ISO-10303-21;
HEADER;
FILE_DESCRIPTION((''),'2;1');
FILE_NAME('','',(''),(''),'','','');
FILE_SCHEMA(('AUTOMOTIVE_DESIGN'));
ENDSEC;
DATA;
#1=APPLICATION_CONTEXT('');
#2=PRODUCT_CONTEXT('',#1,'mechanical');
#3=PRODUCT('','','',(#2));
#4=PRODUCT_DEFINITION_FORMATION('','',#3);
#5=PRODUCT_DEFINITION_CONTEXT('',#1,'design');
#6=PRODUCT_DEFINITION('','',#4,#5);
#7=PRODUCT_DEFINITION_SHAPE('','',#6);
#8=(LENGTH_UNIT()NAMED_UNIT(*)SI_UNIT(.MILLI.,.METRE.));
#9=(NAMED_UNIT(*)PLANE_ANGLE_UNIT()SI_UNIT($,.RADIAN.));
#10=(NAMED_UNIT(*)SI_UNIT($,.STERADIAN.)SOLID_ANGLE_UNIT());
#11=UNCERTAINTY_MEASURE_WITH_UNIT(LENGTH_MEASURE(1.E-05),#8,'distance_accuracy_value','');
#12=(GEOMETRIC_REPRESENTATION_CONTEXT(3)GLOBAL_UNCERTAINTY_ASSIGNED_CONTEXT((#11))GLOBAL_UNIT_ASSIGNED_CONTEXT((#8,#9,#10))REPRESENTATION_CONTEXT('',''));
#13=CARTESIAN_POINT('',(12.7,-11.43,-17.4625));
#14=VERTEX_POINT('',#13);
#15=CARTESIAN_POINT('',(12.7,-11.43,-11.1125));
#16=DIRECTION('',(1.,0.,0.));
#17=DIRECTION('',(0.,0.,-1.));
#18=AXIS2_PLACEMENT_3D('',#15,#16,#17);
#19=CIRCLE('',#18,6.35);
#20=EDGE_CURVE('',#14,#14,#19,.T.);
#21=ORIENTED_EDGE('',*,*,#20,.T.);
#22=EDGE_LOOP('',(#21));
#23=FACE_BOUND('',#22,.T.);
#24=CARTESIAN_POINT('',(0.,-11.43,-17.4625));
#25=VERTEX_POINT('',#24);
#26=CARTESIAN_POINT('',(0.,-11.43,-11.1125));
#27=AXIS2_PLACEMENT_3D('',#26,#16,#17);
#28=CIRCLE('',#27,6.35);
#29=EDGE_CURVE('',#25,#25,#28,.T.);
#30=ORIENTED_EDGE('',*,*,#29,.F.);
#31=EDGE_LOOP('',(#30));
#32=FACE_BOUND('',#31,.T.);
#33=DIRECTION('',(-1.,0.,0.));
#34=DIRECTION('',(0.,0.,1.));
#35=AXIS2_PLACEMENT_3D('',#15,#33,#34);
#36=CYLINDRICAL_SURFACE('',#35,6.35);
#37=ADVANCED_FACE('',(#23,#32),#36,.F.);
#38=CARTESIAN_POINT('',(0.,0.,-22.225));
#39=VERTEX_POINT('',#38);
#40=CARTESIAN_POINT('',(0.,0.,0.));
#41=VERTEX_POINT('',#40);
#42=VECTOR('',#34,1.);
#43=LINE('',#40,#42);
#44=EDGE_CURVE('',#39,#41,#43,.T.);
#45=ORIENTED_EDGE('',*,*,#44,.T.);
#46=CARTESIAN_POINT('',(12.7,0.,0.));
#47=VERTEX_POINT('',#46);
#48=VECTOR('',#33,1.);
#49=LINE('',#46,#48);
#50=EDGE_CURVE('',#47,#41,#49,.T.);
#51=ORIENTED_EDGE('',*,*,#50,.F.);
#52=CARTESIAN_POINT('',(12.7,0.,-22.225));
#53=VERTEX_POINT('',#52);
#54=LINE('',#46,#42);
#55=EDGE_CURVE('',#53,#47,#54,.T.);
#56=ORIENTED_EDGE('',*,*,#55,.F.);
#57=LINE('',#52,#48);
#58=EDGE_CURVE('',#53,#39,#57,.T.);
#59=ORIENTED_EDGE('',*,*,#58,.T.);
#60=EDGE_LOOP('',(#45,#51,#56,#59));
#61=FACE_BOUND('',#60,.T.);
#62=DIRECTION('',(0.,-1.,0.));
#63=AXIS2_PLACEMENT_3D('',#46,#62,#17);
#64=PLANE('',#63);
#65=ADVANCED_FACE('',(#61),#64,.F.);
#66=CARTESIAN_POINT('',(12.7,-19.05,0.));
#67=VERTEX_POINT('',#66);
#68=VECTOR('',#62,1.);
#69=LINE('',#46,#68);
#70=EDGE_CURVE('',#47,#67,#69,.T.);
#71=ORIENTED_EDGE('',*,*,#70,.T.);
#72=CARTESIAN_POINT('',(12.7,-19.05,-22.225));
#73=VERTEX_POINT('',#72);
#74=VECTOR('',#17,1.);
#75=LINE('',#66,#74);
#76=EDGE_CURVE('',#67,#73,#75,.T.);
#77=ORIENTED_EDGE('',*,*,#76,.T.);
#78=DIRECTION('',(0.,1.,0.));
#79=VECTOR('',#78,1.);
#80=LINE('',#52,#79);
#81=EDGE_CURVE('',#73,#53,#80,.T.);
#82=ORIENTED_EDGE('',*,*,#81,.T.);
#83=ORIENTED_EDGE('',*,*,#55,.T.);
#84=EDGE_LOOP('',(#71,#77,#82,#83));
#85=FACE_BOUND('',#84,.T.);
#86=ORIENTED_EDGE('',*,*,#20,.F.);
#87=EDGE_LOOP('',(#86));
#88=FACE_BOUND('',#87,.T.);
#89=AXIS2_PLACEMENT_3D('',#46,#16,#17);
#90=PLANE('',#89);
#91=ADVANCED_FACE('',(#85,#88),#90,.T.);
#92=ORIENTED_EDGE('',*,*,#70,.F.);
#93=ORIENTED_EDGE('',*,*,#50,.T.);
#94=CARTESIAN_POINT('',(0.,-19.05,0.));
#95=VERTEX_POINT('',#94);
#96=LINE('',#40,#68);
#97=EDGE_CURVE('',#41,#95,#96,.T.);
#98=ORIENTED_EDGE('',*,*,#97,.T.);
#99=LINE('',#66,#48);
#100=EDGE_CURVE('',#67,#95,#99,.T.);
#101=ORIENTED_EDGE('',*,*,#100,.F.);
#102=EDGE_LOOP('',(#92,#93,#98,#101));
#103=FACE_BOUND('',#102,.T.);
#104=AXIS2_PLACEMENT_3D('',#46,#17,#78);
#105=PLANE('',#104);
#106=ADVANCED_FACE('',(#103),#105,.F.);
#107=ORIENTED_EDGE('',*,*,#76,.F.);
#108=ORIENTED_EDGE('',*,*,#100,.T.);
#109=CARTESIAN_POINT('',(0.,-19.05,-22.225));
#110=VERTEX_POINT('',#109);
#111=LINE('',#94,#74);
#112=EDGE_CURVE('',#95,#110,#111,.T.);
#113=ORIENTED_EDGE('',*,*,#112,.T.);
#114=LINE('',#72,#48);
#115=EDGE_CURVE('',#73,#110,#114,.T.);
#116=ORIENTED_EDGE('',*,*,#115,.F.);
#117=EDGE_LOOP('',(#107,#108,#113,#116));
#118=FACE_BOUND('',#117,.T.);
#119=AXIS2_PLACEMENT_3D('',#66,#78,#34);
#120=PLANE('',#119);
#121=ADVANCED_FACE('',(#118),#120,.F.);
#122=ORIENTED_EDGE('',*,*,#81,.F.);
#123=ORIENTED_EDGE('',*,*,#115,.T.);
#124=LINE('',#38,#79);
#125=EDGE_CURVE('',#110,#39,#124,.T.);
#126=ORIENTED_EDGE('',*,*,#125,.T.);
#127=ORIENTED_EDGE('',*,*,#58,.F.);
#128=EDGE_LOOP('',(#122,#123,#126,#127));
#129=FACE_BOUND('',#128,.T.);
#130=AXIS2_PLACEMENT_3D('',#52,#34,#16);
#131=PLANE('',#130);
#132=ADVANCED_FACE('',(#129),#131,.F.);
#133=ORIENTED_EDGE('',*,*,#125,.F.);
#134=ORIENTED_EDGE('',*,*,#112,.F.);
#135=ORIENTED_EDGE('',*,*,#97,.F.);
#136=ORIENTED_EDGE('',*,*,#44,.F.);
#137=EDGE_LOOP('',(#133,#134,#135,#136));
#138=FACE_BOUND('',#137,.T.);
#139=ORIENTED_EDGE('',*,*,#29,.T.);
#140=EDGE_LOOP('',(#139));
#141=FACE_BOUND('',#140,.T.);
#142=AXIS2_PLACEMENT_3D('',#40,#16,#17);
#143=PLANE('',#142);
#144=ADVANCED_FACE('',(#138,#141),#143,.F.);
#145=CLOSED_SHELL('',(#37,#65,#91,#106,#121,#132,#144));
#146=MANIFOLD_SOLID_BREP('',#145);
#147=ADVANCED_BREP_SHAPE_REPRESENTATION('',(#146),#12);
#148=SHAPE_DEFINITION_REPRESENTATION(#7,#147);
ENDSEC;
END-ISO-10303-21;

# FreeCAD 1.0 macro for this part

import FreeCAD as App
import Part
import Sketcher
from FreeCAD import Vector
Q = App.Units.Quantity

doc = App.newDocument("Part")
body = doc.addObject("PartDesign::Body", "Body")

sketch1 = body.newObject("Sketcher::SketchObject", "Sketch")
sketch1.AttachmentSupport = (doc.getObject("YZ_Plane"), [""])
sketch1.MapMode = "FlatFace"
sketch1.addGeometry([
    Part.LineSegment(Vector(0, 0, 0), Vector(-19, 0, 0)),
    Part.LineSegment(Vector(-19, 0, 0), Vector(-19, -22, 0)),
    Part.LineSegment(Vector(-19, -22, 0), Vector(0, -22, 0)),
    Part.LineSegment(Vector(0, -22, 0), Vector(0, 0, 0)),
    Part.Circle(Vector(-11, -11, 0), Vector(0, 0, 1), 6),
], False)
sketch1.addConstraint([
    Sketcher.Constraint("Coincident", 0, 2, 1, 1),
    Sketcher.Constraint("Coincident", 1, 2, 2, 1),
    Sketcher.Constraint("Coincident", 2, 2, 3, 1),
    Sketcher.Constraint("Coincident", 3, 2, 0, 1),
    Sketcher.Constraint("Horizontal", 0),
    Sketcher.Constraint("Vertical", 1),
    Sketcher.Constraint("Horizontal", 2),
    Sketcher.Constraint("Vertical", 3),
    Sketcher.Constraint("Coincident", 3, 2, -1, 1),
    Sketcher.Constraint("Diameter", 4, Q("0.5 in")),
    Sketcher.Constraint("DistanceX", 0, 2, 0, 1, Q("0.75 in")),
    Sketcher.Constraint("DistanceX", 0, 2, 4, 3, Q("0.3 in")),
    Sketcher.Constraint("DistanceY", 1, 2, 1, 1, Q("0.875 in")),
    Sketcher.Constraint("DistanceY", 4, 3, -1, 1, Q("0.4375 in")),
])
pad1 = body.newObject("PartDesign::Pad", "Pad")
pad1.Profile = sketch1
pad1.Length = Q("0.5 in")

doc.recompute()
